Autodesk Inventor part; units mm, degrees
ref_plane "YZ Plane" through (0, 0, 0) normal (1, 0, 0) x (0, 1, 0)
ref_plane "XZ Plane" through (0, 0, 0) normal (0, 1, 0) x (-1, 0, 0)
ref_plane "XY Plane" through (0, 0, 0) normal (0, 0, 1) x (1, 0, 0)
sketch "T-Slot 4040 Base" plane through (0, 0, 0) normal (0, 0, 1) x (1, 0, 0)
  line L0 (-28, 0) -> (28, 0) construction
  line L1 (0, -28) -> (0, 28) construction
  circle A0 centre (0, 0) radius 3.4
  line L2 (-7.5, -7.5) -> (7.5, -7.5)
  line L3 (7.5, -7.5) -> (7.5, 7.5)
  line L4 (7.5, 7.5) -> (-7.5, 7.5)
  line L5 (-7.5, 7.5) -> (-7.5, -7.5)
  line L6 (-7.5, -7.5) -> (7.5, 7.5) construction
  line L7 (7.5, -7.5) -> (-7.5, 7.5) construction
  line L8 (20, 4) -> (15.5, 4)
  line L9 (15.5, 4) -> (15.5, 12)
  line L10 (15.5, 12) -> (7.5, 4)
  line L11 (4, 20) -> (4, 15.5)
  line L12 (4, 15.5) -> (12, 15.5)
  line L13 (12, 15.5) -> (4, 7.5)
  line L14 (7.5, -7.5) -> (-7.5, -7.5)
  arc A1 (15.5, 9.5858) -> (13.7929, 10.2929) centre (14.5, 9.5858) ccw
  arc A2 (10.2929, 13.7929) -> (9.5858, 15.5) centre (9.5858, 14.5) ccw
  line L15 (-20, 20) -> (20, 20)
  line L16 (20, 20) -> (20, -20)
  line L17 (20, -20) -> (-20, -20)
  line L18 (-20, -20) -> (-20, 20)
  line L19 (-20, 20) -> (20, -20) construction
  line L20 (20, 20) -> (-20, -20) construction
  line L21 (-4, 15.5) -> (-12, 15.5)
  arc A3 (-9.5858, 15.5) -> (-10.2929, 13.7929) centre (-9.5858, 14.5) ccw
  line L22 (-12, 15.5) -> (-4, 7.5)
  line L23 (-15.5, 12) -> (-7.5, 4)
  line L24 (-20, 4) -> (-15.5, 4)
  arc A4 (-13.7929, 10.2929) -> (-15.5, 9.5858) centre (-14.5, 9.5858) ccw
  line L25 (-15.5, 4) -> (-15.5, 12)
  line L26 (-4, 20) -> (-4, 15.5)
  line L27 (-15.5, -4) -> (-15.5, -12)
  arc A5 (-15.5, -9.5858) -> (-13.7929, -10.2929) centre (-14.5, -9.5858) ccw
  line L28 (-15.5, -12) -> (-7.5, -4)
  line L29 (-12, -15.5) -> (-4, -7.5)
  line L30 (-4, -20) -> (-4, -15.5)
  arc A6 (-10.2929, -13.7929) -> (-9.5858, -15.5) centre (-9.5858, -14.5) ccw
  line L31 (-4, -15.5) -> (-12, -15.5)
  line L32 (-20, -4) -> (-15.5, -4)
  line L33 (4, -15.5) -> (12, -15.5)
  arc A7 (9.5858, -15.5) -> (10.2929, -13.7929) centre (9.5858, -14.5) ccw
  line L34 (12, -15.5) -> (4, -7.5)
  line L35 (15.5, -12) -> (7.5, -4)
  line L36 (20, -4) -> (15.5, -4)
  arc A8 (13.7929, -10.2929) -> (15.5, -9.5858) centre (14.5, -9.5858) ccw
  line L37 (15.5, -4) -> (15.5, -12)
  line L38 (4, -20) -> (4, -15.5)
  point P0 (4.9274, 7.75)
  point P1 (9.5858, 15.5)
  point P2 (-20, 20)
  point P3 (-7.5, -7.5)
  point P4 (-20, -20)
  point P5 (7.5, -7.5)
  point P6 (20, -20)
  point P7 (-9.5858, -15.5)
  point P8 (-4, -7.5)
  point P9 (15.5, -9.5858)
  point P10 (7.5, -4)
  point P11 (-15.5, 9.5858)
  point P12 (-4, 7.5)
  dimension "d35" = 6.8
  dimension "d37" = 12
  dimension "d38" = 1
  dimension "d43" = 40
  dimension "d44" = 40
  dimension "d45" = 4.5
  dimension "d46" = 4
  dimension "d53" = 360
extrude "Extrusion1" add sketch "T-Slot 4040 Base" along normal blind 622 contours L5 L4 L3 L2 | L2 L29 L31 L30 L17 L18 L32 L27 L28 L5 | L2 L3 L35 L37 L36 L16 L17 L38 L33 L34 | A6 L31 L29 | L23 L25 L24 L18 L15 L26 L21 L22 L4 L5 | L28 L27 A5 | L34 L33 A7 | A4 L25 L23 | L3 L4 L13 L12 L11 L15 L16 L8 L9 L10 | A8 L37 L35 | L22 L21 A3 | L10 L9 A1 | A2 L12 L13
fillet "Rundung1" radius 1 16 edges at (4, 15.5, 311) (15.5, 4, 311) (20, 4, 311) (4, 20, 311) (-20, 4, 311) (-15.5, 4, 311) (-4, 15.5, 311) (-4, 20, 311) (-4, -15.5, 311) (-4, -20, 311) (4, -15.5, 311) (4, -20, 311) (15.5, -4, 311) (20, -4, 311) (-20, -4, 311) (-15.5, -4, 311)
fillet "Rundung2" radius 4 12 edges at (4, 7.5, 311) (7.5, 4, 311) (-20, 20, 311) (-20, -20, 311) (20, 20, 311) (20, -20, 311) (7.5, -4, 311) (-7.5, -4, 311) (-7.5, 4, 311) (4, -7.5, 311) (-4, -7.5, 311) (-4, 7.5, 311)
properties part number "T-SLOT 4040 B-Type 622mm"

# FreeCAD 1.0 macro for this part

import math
import FreeCAD as App
import Part
import Sketcher
Q = App.Units.Quantity


def edges_at(feature, points):
    """Names of the edges that pass closest to the given points."""
    edges = feature.Shape.Edges
    near = lambda p: min(range(len(edges)), key=lambda i: edges[i].distToShape(Part.Vertex(*p))[0])
    return sorted({f"Edge{near(p) + 1}" for p in points})

doc = App.newDocument("Part")
body = doc.addObject("PartDesign::Body", "Body")

sketch1 = body.newObject("Sketcher::SketchObject", "Sketch")
sketch1.AttachmentSupport = (doc.getObject("XY_Plane"), [""])
sketch1.MapMode = "FlatFace"
sketch1.addGeometry(Part.LineSegment(App.Vector(-7.5, 4, 0), App.Vector(-7.5, -4, 0)), False)
sketch1.addGeometry(Part.LineSegment(App.Vector(-7.5, -4, 0), App.Vector(-13.8, -10.3, 0)), False)
sketch1.addGeometry(Part.ArcOfCircle(Part.Circle(App.Vector(-14.5, -9.6, 0), App.Vector(0, 0, 1), 1), math.radians(180), math.radians(315)), False)
sketch1.addGeometry(Part.LineSegment(App.Vector(-15.5, -9.6, 0), App.Vector(-15.5, -4, 0)), False)
sketch1.addGeometry(Part.LineSegment(App.Vector(-15.5, -4, 0), App.Vector(-20, -4, 0)), False)
sketch1.addGeometry(Part.LineSegment(App.Vector(-20, -4, 0), App.Vector(-20, -20, 0)), False)
sketch1.addGeometry(Part.LineSegment(App.Vector(-20, -20, 0), App.Vector(-4, -20, 0)), False)
sketch1.addGeometry(Part.LineSegment(App.Vector(-4, -20, 0), App.Vector(-4, -15.5, 0)), False)
sketch1.addGeometry(Part.LineSegment(App.Vector(-4, -15.5, 0), App.Vector(-9.6, -15.5, 0)), False)
sketch1.addGeometry(Part.ArcOfCircle(Part.Circle(App.Vector(-9.6, -14.5, 0), App.Vector(0, 0, 1), 1), math.radians(135), math.radians(270)), False)
sketch1.addGeometry(Part.LineSegment(App.Vector(-10.3, -13.8, 0), App.Vector(-4, -7.5, 0)), False)
sketch1.addGeometry(Part.LineSegment(App.Vector(-4, -7.5, 0), App.Vector(4, -7.5, 0)), False)
sketch1.addGeometry(Part.LineSegment(App.Vector(4, -7.5, 0), App.Vector(10.3, -13.8, 0)), False)
sketch1.addGeometry(Part.ArcOfCircle(Part.Circle(App.Vector(9.6, -14.5, 0), App.Vector(0, 0, 1), 1), math.radians(-90), math.radians(45)), False)
sketch1.addGeometry(Part.LineSegment(App.Vector(9.6, -15.5, 0), App.Vector(4, -15.5, 0)), False)
sketch1.addGeometry(Part.LineSegment(App.Vector(4, -15.5, 0), App.Vector(4, -20, 0)), False)
sketch1.addGeometry(Part.LineSegment(App.Vector(4, -20, 0), App.Vector(20, -20, 0)), False)
sketch1.addGeometry(Part.LineSegment(App.Vector(20, -20, 0), App.Vector(20, -4, 0)), False)
sketch1.addGeometry(Part.LineSegment(App.Vector(20, -4, 0), App.Vector(15.5, -4, 0)), False)
sketch1.addGeometry(Part.LineSegment(App.Vector(15.5, -4, 0), App.Vector(15.5, -9.6, 0)), False)
sketch1.addGeometry(Part.ArcOfCircle(Part.Circle(App.Vector(14.5, -9.6, 0), App.Vector(0, 0, 1), 1), math.radians(-135), math.radians(0)), False)
sketch1.addGeometry(Part.LineSegment(App.Vector(13.8, -10.3, 0), App.Vector(7.5, -4, 0)), False)
sketch1.addGeometry(Part.LineSegment(App.Vector(7.5, -4, 0), App.Vector(7.5, 4, 0)), False)
sketch1.addGeometry(Part.LineSegment(App.Vector(7.5, 4, 0), App.Vector(13.8, 10.3, 0)), False)
sketch1.addGeometry(Part.ArcOfCircle(Part.Circle(App.Vector(14.5, 9.6, 0), App.Vector(0, 0, 1), 1), math.radians(0), math.radians(135)), False)
sketch1.addGeometry(Part.LineSegment(App.Vector(15.5, 9.6, 0), App.Vector(15.5, 4, 0)), False)
sketch1.addGeometry(Part.LineSegment(App.Vector(15.5, 4, 0), App.Vector(20, 4, 0)), False)
sketch1.addGeometry(Part.LineSegment(App.Vector(20, 4, 0), App.Vector(20, 20, 0)), False)
sketch1.addGeometry(Part.LineSegment(App.Vector(20, 20, 0), App.Vector(4, 20, 0)), False)
sketch1.addGeometry(Part.LineSegment(App.Vector(4, 20, 0), App.Vector(4, 15.5, 0)), False)
sketch1.addGeometry(Part.LineSegment(App.Vector(4, 15.5, 0), App.Vector(9.6, 15.5, 0)), False)
sketch1.addGeometry(Part.ArcOfCircle(Part.Circle(App.Vector(9.6, 14.5, 0), App.Vector(0, 0, 1), 1), math.radians(-45), math.radians(90)), False)
sketch1.addGeometry(Part.LineSegment(App.Vector(10.3, 13.8, 0), App.Vector(4, 7.5, 0)), False)
sketch1.addGeometry(Part.LineSegment(App.Vector(4, 7.5, 0), App.Vector(-4, 7.5, 0)), False)
sketch1.addGeometry(Part.LineSegment(App.Vector(-4, 7.5, 0), App.Vector(-10.3, 13.8, 0)), False)
sketch1.addGeometry(Part.ArcOfCircle(Part.Circle(App.Vector(-9.6, 14.5, 0), App.Vector(0, 0, 1), 1), math.radians(90), math.radians(225)), False)
sketch1.addGeometry(Part.LineSegment(App.Vector(-9.6, 15.5, 0), App.Vector(-4, 15.5, 0)), False)
sketch1.addGeometry(Part.LineSegment(App.Vector(-4, 15.5, 0), App.Vector(-4, 20, 0)), False)
sketch1.addGeometry(Part.LineSegment(App.Vector(-4, 20, 0), App.Vector(-20, 20, 0)), False)
sketch1.addGeometry(Part.LineSegment(App.Vector(-20, 20, 0), App.Vector(-20, 4, 0)), False)
sketch1.addGeometry(Part.LineSegment(App.Vector(-20, 4, 0), App.Vector(-15.5, 4, 0)), False)
sketch1.addGeometry(Part.LineSegment(App.Vector(-15.5, 4, 0), App.Vector(-15.5, 9.6, 0)), False)
sketch1.addGeometry(Part.ArcOfCircle(Part.Circle(App.Vector(-14.5, 9.6, 0), App.Vector(0, 0, 1), 1), math.radians(45), math.radians(180)), False)
sketch1.addGeometry(Part.LineSegment(App.Vector(-13.8, 10.3, 0), App.Vector(-7.5, 4, 0)), False)
sketch1.addGeometry(Part.Circle(App.Vector(0, 0, 0), App.Vector(0, 0, 1), 3.4), False)
sketch1.addConstraint(Sketcher.Constraint("Coincident", 0, 2, 1, 1))
sketch1.addConstraint(Sketcher.Constraint("Tangent", 1, 2, 2, 2))
sketch1.addConstraint(Sketcher.Constraint("Tangent", 2, 1, 3, 1))
sketch1.addConstraint(Sketcher.Constraint("Coincident", 3, 2, 4, 1))
sketch1.addConstraint(Sketcher.Constraint("Coincident", 4, 2, 5, 1))
sketch1.addConstraint(Sketcher.Constraint("Coincident", 5, 2, 6, 1))
sketch1.addConstraint(Sketcher.Constraint("Coincident", 6, 2, 7, 1))
sketch1.addConstraint(Sketcher.Constraint("Coincident", 7, 2, 8, 1))
sketch1.addConstraint(Sketcher.Constraint("Tangent", 8, 2, 9, 2))
sketch1.addConstraint(Sketcher.Constraint("Tangent", 9, 1, 10, 1))
sketch1.addConstraint(Sketcher.Constraint("Coincident", 10, 2, 11, 1))
sketch1.addConstraint(Sketcher.Constraint("Coincident", 11, 2, 12, 1))
sketch1.addConstraint(Sketcher.Constraint("Tangent", 12, 2, 13, 2))
sketch1.addConstraint(Sketcher.Constraint("Tangent", 13, 1, 14, 1))
sketch1.addConstraint(Sketcher.Constraint("Coincident", 14, 2, 15, 1))
sketch1.addConstraint(Sketcher.Constraint("Coincident", 15, 2, 16, 1))
sketch1.addConstraint(Sketcher.Constraint("Coincident", 16, 2, 17, 1))
sketch1.addConstraint(Sketcher.Constraint("Coincident", 17, 2, 18, 1))
sketch1.addConstraint(Sketcher.Constraint("Coincident", 18, 2, 19, 1))
sketch1.addConstraint(Sketcher.Constraint("Tangent", 19, 2, 20, 2))
sketch1.addConstraint(Sketcher.Constraint("Tangent", 20, 1, 21, 1))
sketch1.addConstraint(Sketcher.Constraint("Coincident", 21, 2, 22, 1))
sketch1.addConstraint(Sketcher.Constraint("Coincident", 22, 2, 23, 1))
sketch1.addConstraint(Sketcher.Constraint("Tangent", 23, 2, 24, 2))
sketch1.addConstraint(Sketcher.Constraint("Tangent", 24, 1, 25, 1))
sketch1.addConstraint(Sketcher.Constraint("Coincident", 25, 2, 26, 1))
sketch1.addConstraint(Sketcher.Constraint("Coincident", 26, 2, 27, 1))
sketch1.addConstraint(Sketcher.Constraint("Coincident", 27, 2, 28, 1))
sketch1.addConstraint(Sketcher.Constraint("Coincident", 28, 2, 29, 1))
sketch1.addConstraint(Sketcher.Constraint("Coincident", 29, 2, 30, 1))
sketch1.addConstraint(Sketcher.Constraint("Tangent", 30, 2, 31, 2))
sketch1.addConstraint(Sketcher.Constraint("Tangent", 31, 1, 32, 1))
sketch1.addConstraint(Sketcher.Constraint("Coincident", 32, 2, 33, 1))
sketch1.addConstraint(Sketcher.Constraint("Coincident", 33, 2, 34, 1))
sketch1.addConstraint(Sketcher.Constraint("Tangent", 34, 2, 35, 2))
sketch1.addConstraint(Sketcher.Constraint("Tangent", 35, 1, 36, 1))
sketch1.addConstraint(Sketcher.Constraint("Coincident", 36, 2, 37, 1))
sketch1.addConstraint(Sketcher.Constraint("Coincident", 37, 2, 38, 1))
sketch1.addConstraint(Sketcher.Constraint("Coincident", 38, 2, 39, 1))
sketch1.addConstraint(Sketcher.Constraint("Coincident", 39, 2, 40, 1))
sketch1.addConstraint(Sketcher.Constraint("Coincident", 40, 2, 41, 1))
sketch1.addConstraint(Sketcher.Constraint("Tangent", 41, 2, 42, 2))
sketch1.addConstraint(Sketcher.Constraint("Tangent", 42, 1, 43, 1))
sketch1.addConstraint(Sketcher.Constraint("Coincident", 43, 2, 0, 1))
sketch1.addConstraint(Sketcher.Constraint("Vertical", 0))
sketch1.addConstraint(Sketcher.Constraint("Vertical", 3))
sketch1.addConstraint(Sketcher.Constraint("Horizontal", 4))
sketch1.addConstraint(Sketcher.Constraint("Vertical", 5))
sketch1.addConstraint(Sketcher.Constraint("Horizontal", 6))
sketch1.addConstraint(Sketcher.Constraint("Vertical", 7))
sketch1.addConstraint(Sketcher.Constraint("Horizontal", 8))
sketch1.addConstraint(Sketcher.Constraint("Horizontal", 11))
sketch1.addConstraint(Sketcher.Constraint("Horizontal", 14))
sketch1.addConstraint(Sketcher.Constraint("Vertical", 15))
sketch1.addConstraint(Sketcher.Constraint("Horizontal", 16))
sketch1.addConstraint(Sketcher.Constraint("Vertical", 17))
sketch1.addConstraint(Sketcher.Constraint("Horizontal", 18))
sketch1.addConstraint(Sketcher.Constraint("Vertical", 19))
sketch1.addConstraint(Sketcher.Constraint("Vertical", 22))
sketch1.addConstraint(Sketcher.Constraint("Vertical", 25))
sketch1.addConstraint(Sketcher.Constraint("Horizontal", 26))
sketch1.addConstraint(Sketcher.Constraint("Vertical", 27))
sketch1.addConstraint(Sketcher.Constraint("Horizontal", 28))
sketch1.addConstraint(Sketcher.Constraint("Vertical", 29))
sketch1.addConstraint(Sketcher.Constraint("Horizontal", 30))
sketch1.addConstraint(Sketcher.Constraint("Horizontal", 33))
sketch1.addConstraint(Sketcher.Constraint("Horizontal", 36))
sketch1.addConstraint(Sketcher.Constraint("Vertical", 37))
sketch1.addConstraint(Sketcher.Constraint("Horizontal", 38))
sketch1.addConstraint(Sketcher.Constraint("Vertical", 39))
sketch1.addConstraint(Sketcher.Constraint("Horizontal", 40))
sketch1.addConstraint(Sketcher.Constraint("Vertical", 41))
sketch1.addConstraint(Sketcher.Constraint("Coincident", 44, 3, -1, 1))
sketch1.addConstraint(Sketcher.Constraint("Equal", 2, 9))
sketch1.addConstraint(Sketcher.Constraint("Equal", 9, 13))
sketch1.addConstraint(Sketcher.Constraint("Equal", 13, 20))
sketch1.addConstraint(Sketcher.Constraint("Equal", 20, 24))
sketch1.addConstraint(Sketcher.Constraint("Equal", 24, 31))
sketch1.addConstraint(Sketcher.Constraint("Equal", 31, 35))
sketch1.addConstraint(Sketcher.Constraint("Equal", 35, 42))
sketch1.addConstraint(Sketcher.Constraint("Symmetric", 2, 3, 24, 3, -1, 1))
sketch1.addConstraint(Sketcher.Constraint("Symmetric", 9, 3, 31, 3, -1, 1))
sketch1.addConstraint(Sketcher.Constraint("Symmetric", 13, 3, 35, 3, -1, 1))
sketch1.addConstraint(Sketcher.Constraint("Symmetric", 20, 3, 42, 3, -1, 1))
sketch1.addConstraint(Sketcher.Constraint("Symmetric", 0, 2, 22, 2, -1, 1))
sketch1.addConstraint(Sketcher.Constraint("Symmetric", 4, 2, 26, 2, -1, 1))
sketch1.addConstraint(Sketcher.Constraint("Symmetric", 6, 2, 28, 2, -1, 1))
sketch1.addConstraint(Sketcher.Constraint("Symmetric", 10, 2, 32, 2, -1, 1))
sketch1.addConstraint(Sketcher.Constraint("Symmetric", 15, 2, 37, 2, -1, 1))
sketch1.addConstraint(Sketcher.Constraint("Symmetric", 17, 2, 39, 2, -1, 1))
sketch1.addConstraint(Sketcher.Constraint("Symmetric", 9, 3, 13, 3, -2))
sketch1.addConstraint(Sketcher.Constraint("Symmetric", 2, 3, 20, 3, -2))
sketch1.addConstraint(Sketcher.Constraint("Symmetric", 6, 2, 15, 2, -2))
sketch1.addConstraint(Sketcher.Constraint("Symmetric", 4, 2, 17, 2, -2))
sketch1.addConstraint(Sketcher.Constraint("Parallel", 1, 10))
sketch1.addConstraint(Sketcher.Constraint("Perpendicular", 10, 12))
sketch1.addConstraint(Sketcher.Constraint("Parallel", 12, 21))
sketch1.addConstraint(Sketcher.Constraint("Perpendicular", 32, 34))
sketch1.addConstraint(Sketcher.Constraint("Parallel", 34, 43))
sketch1.addConstraint(Sketcher.Constraint("Horizontal", 0, 2, 3, 2))
sketch1.addConstraint(Sketcher.Constraint("Horizontal", 9, 1, 12, 2))
sketch1.addConstraint(Sketcher.Constraint("Vertical", 7, 2, 10, 2))
sketch1.addConstraint(Sketcher.Constraint("Equal", 33, 0))
sketch1.addConstraint(Sketcher.Constraint("Equal", 36, 3))
sketch1.addConstraint(Sketcher.Constraint("Equal", 38, 5))
sketch1.addConstraint(Sketcher.Constraint("Equal", 40, 7))
sketch1.addConstraint(Sketcher.Constraint("Radius", 2, Q("1 mm")))
sketch1.addConstraint(Sketcher.Constraint("Diameter", 44, Q("6.8 mm")))
sketch1.addConstraint(Sketcher.Constraint("DistanceX", 4, 2, 4, 1, Q("4.5 mm")))
sketch1.addConstraint(Sketcher.Constraint("DistanceY", 0, 2, -1, 1, Q("4 mm")))
sketch1.addConstraint(Sketcher.Constraint("DistanceX", 6, 1, 6, 2, Q("16 mm")))
sketch1.addConstraint(Sketcher.Constraint("DistanceX", 2, 3, 0, 2, Q("7 mm")))
pad1 = body.newObject("PartDesign::Pad", "Pad")
pad1.Profile = sketch1
pad1.Length = 622
doc.recompute()

fillet = body.newObject("PartDesign::Fillet", "Fillet")
fillet.Base = (pad1, edges_at(pad1, [
    (4, 15.5, 311),
    (15.5, 4, 311),
    (20, 4, 311),
    (4, 20, 311),
    (-20, 4, 311),
    (-15.5, 4, 311),
    (-4, 15.5, 311),
    (-4, 20, 311),
    (-4, -15.5, 311),
    (-4, -20, 311),
    (4, -15.5, 311),
    (4, -20, 311),
    (15.5, -4, 311),
    (20, -4, 311),
    (-20, -4, 311),
    (-15.5, -4, 311),
]))
fillet.Radius = 1
doc.recompute()

fillet2 = body.newObject("PartDesign::Fillet", "Fillet001")
fillet2.Base = (fillet, edges_at(fillet, [
    (4, 7.5, 311),
    (7.5, 4, 311),
    (-20, 20, 311),
    (-20, -20, 311),
    (20, 20, 311),
    (20, -20, 311),
    (7.5, -4, 311),
    (-7.5, -4, 311),
    (-7.5, 4, 311),
    (4, -7.5, 311),
    (-4, -7.5, 311),
    (-4, 7.5, 311),
]))
fillet2.Radius = 4

doc.recompute()
